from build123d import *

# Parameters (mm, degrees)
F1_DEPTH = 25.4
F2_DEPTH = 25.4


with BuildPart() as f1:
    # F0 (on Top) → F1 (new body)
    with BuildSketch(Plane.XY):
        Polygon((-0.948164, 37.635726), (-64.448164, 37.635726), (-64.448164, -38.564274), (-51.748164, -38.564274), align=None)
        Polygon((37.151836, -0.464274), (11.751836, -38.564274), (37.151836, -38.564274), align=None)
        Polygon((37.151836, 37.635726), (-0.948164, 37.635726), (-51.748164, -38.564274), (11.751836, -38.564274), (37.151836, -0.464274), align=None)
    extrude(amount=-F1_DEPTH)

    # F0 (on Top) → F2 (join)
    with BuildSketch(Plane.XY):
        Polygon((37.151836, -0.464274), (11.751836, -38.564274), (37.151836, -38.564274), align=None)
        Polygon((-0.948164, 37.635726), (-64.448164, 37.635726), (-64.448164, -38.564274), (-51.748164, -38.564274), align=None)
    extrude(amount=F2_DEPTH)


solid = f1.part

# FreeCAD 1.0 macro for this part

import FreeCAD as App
import Part
import Sketcher

V = App.Vector
Q = App.Units.Quantity

doc = App.newDocument("Part")
body = doc.addObject("PartDesign::Body", "Body")

# Sketch on XY plane
sketch1 = doc.addObject("Sketcher::SketchObject", "Sketch")
body.addObject(sketch1)
sketch1.AttachmentSupport = (doc.XY_Plane, [""])
sketch1.MapMode = "FlatFace"
sketch1.addGeometry([
    Part.LineSegment(V(-64.448164, 37.635726, 0), V(-64.448164, -38.564274, 0)),
    Part.LineSegment(V(-64.448164, -38.564274, 0), V(37.151836, -38.564274, 0)),
    Part.LineSegment(V(37.151836, -38.564274, 0), V(37.151836, 37.635726, 0)),
    Part.LineSegment(V(37.151836, 37.635726, 0), V(-64.448164, 37.635726, 0)),
], False)
sketch1.addConstraint([
    Sketcher.Constraint("Coincident", 0, 2, 1, 1),
    Sketcher.Constraint("Coincident", 1, 2, 2, 1),
    Sketcher.Constraint("Coincident", 2, 2, 3, 1),
    Sketcher.Constraint("Coincident", 3, 2, 0, 1),
    Sketcher.Constraint("Vertical", 0),
    Sketcher.Constraint("Horizontal", 1),
    Sketcher.Constraint("Vertical", 2),
    Sketcher.Constraint("Horizontal", 3),
    Sketcher.Constraint("DistanceX", 1, 1, 1, 2, Q("4 in")),
    Sketcher.Constraint("DistanceY", 0, 2, 0, 1, Q("3 in")),
    Sketcher.Constraint("DistanceX", 0, 2, -1, 1, Q("64.448164 mm")),
    Sketcher.Constraint("DistanceY", 0, 2, -1, 1, Q("38.564274 mm")),
])
pad1 = doc.addObject("PartDesign::Pad", "Pad")
body.addObject(pad1)
pad1.Profile = sketch1
pad1.Length = Q("1 in")
pad1.Reversed = True

# Sketch on XY plane
sketch2 = doc.addObject("Sketcher::SketchObject", "Sketch001")
body.addObject(sketch2)
sketch2.AttachmentSupport = (doc.XY_Plane, [""])
sketch2.MapMode = "FlatFace"
sketch2.addGeometry([
    Part.LineSegment(V(37.151836, -0.464274, 0), V(11.751836, -38.564274, 0)),  # 0
    Part.LineSegment(V(11.751836, -38.564274, 0), V(37.151836, -38.564274, 0)),  # 1
    Part.LineSegment(V(37.151836, -38.564274, 0), V(37.151836, -0.464274, 0)),  # 2
    Part.LineSegment(V(-0.948164, 37.635726, 0), V(-64.448164, 37.635726, 0)),  # 3
    Part.LineSegment(V(-64.448164, 37.635726, 0), V(-64.448164, -38.564274, 0)),  # 4
    Part.LineSegment(V(-64.448164, -38.564274, 0), V(-51.748164, -38.564274, 0)),  # 5
    Part.LineSegment(V(-51.748164, -38.564274, 0), V(-0.948164, 37.635726, 0)),  # 6
], False)
sketch2.addConstraint([
    Sketcher.Constraint("Coincident", 0, 2, 1, 1),
    Sketcher.Constraint("Coincident", 1, 2, 2, 1),
    Sketcher.Constraint("Coincident", 2, 2, 0, 1),
    Sketcher.Constraint("Coincident", 3, 2, 4, 1),
    Sketcher.Constraint("Coincident", 4, 2, 5, 1),
    Sketcher.Constraint("Coincident", 5, 2, 6, 1),
    Sketcher.Constraint("Coincident", 6, 2, 3, 1),
    Sketcher.Constraint("Horizontal", 1),
    Sketcher.Constraint("Vertical", 2),
    Sketcher.Constraint("Horizontal", 3),
    Sketcher.Constraint("Vertical", 4),
    Sketcher.Constraint("Horizontal", 5),
    Sketcher.Constraint("Parallel", 0, 6),
    Sketcher.Constraint("Horizontal", 1, 2, 4, 2),
    Sketcher.Constraint("DistanceX", 1, 1, 1, 2, Q("1 in")),
    Sketcher.Constraint("DistanceY", 4, 2, 4, 1, Q("3 in")),
    Sketcher.Constraint("DistanceX", 3, 2, 3, 1, Q("2.5 in")),
    Sketcher.Constraint("DistanceX", 5, 1, 5, 2, Q("0.5 in")),
    Sketcher.Constraint("DistanceX", 3, 2, 0, 2, Q("3 in")),
    Sketcher.Constraint("DistanceX", -1, 1, 0, 2, Q("11.751836 mm")),
    Sketcher.Constraint("DistanceY", 0, 2, -1, 1, Q("38.564274 mm")),
])
pad2 = doc.addObject("PartDesign::Pad", "Pad001")
body.addObject(pad2)
pad2.Profile = sketch2
pad2.Length = Q("1 in")

doc.recompute()
